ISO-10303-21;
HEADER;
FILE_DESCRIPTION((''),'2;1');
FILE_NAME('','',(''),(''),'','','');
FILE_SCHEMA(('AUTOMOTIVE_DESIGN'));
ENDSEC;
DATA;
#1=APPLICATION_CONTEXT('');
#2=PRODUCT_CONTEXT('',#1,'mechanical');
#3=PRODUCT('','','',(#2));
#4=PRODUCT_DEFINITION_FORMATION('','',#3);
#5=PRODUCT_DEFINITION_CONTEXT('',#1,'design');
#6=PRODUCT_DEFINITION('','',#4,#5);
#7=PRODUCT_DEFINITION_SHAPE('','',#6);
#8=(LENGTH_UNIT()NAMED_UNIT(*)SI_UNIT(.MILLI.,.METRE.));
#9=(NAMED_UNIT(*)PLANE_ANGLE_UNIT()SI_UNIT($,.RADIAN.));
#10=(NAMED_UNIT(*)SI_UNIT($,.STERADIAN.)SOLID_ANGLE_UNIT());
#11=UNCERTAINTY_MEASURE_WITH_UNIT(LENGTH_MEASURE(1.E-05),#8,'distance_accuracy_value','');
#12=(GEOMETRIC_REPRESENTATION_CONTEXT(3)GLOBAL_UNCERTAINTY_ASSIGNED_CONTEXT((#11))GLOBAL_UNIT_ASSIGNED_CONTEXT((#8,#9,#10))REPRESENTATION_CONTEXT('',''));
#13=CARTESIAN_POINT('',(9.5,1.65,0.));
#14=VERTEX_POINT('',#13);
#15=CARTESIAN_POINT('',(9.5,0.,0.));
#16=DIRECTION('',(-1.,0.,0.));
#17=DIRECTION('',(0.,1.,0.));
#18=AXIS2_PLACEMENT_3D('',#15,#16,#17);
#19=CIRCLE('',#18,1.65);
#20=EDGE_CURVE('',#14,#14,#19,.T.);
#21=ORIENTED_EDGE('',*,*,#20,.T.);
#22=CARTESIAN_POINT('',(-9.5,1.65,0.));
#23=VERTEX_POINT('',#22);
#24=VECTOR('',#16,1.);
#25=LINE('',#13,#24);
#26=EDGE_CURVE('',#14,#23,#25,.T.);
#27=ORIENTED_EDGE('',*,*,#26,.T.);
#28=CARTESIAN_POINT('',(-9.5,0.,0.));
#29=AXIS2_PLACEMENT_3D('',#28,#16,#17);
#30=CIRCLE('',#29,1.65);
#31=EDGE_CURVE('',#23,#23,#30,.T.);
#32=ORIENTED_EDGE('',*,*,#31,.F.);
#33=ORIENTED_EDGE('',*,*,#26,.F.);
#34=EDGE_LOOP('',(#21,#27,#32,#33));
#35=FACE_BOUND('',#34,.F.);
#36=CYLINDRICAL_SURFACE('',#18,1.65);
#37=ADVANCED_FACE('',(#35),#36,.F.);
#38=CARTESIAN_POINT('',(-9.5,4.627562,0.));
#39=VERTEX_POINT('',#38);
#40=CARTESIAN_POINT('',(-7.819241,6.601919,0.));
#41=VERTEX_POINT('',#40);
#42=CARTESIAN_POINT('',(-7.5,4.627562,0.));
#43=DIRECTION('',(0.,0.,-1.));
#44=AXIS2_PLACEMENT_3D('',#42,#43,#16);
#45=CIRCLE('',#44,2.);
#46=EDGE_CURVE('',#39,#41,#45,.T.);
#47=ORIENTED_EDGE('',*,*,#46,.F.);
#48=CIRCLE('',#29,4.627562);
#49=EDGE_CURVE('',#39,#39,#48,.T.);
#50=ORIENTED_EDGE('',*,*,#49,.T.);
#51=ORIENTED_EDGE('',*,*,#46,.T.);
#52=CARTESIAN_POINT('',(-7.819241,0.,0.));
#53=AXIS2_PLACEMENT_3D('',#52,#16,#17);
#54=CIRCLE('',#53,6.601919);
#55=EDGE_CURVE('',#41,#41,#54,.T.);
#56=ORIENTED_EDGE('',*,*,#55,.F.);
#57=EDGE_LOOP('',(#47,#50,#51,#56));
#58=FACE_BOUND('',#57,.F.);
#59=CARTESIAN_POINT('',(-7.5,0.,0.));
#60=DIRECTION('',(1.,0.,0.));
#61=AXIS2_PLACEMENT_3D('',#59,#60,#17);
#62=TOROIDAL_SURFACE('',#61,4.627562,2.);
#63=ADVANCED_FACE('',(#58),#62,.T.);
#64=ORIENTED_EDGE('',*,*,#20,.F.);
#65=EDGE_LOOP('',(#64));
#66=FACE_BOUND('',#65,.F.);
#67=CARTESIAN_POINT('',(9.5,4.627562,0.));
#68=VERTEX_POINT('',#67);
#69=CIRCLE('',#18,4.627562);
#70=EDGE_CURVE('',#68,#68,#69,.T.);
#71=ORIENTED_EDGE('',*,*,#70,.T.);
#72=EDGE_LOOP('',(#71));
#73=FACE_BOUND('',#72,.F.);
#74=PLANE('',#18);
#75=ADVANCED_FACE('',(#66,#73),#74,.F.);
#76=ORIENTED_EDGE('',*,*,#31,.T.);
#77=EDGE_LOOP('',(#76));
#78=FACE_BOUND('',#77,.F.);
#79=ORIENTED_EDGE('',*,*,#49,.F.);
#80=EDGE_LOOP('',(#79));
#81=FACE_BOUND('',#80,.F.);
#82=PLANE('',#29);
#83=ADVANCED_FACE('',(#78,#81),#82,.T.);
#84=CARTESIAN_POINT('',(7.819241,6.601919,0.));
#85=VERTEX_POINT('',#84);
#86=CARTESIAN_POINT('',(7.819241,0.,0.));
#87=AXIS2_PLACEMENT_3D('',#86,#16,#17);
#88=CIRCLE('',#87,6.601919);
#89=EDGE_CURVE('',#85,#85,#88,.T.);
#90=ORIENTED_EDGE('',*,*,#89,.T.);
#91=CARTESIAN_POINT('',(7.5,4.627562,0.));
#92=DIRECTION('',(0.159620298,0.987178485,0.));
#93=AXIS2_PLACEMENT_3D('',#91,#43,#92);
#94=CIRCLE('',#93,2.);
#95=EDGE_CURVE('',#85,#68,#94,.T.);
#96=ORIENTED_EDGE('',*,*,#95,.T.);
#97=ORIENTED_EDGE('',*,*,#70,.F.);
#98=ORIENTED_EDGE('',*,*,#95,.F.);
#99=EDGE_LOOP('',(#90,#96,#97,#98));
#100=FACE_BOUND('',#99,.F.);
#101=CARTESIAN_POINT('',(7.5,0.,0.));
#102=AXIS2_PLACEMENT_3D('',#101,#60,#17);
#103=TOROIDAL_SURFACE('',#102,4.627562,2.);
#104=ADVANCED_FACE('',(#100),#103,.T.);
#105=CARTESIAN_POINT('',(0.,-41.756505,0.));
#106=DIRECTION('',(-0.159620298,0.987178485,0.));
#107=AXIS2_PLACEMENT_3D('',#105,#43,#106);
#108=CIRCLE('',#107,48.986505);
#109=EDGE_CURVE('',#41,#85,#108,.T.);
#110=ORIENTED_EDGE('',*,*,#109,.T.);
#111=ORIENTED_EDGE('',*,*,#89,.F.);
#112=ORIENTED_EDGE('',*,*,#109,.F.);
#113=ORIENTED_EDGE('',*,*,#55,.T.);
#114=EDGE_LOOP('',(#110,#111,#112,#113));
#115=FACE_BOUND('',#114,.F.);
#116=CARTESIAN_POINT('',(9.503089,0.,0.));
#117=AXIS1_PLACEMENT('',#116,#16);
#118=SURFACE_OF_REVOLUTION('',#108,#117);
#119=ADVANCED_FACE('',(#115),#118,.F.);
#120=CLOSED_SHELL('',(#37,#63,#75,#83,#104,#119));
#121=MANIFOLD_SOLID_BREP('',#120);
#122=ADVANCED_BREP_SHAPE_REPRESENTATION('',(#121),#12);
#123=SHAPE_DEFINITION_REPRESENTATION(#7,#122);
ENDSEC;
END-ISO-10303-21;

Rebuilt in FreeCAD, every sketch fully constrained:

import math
import FreeCAD as App
import Part
import Sketcher

doc = App.newDocument("Part")
body = doc.addObject("PartDesign::Body", "Body")

# Sketch on XY plane
sketch1 = body.newObject("Sketcher::SketchObject", "Sketch")
sketch1.AttachmentSupport = (doc.getObject("XY_Plane"), [""])
sketch1.MapMode = "FlatFace"
sketch1.addGeometry([
    Part.LineSegment(App.Vector(9.5, 4.6, 0), App.Vector(9.5, 1.6, 0)),  # 0
    Part.LineSegment(App.Vector(9.5, 1.6, 0), App.Vector(-9.5, 1.6, 0)),  # 1
    Part.LineSegment(App.Vector(-9.5, 1.6, 0), App.Vector(-9.5, 4.6, 0)),  # 2
    Part.ArcOfCircle(Part.Circle(App.Vector(-7.5, 4.6, 0), App.Vector(0, 0, 1), 2), math.radians(99), math.radians(180)),  # 3
    Part.ArcOfCircle(Part.Circle(App.Vector(0, -41.8, 0), App.Vector(0, 0, 1), 49), math.radians(80.82), math.radians(99.18)),  # 4
    Part.ArcOfCircle(Part.Circle(App.Vector(7.5, 4.6, 0), App.Vector(0, 0, 1), 2), math.radians(0), math.radians(81)),  # 5
], False)
sketch1.addConstraint([
    Sketcher.Constraint("Coincident", 0, 2, 1, 1),
    Sketcher.Constraint("Coincident", 1, 2, 2, 1),
    Sketcher.Constraint("Tangent", 2, 2, 3, 2),
    Sketcher.Constraint("Tangent", 3, 1, 4, 2),
    Sketcher.Constraint("Tangent", 4, 1, 5, 2),
    Sketcher.Constraint("Tangent", 5, 1, 0, 1),
    Sketcher.Constraint("Vertical", 0),
    Sketcher.Constraint("Horizontal", 1),
    Sketcher.Constraint("Vertical", 2),
    Sketcher.Constraint("Equal", 3, 5),
    Sketcher.Constraint("Symmetric", 3, 3, 5, 3, -2),
    Sketcher.Constraint("Radius", 3, 2.0),
    Sketcher.Constraint("DistanceX", 1, 2, 1, 1, 19.0),
    Sketcher.Constraint("DistanceY", -1, 1, 0, 2, 1.65),
    Sketcher.Constraint("Radius", 4, 48.986505),
    Sketcher.Constraint("DistanceY", 0, 2, 0, 1, 2.977562),
])
revolution = body.newObject("PartDesign::Revolution", "Revolution")
revolution.Profile = sketch1
revolution.ReferenceAxis = (sketch1, ["H_Axis"])
revolution.Angle = 360

doc.recompute()
